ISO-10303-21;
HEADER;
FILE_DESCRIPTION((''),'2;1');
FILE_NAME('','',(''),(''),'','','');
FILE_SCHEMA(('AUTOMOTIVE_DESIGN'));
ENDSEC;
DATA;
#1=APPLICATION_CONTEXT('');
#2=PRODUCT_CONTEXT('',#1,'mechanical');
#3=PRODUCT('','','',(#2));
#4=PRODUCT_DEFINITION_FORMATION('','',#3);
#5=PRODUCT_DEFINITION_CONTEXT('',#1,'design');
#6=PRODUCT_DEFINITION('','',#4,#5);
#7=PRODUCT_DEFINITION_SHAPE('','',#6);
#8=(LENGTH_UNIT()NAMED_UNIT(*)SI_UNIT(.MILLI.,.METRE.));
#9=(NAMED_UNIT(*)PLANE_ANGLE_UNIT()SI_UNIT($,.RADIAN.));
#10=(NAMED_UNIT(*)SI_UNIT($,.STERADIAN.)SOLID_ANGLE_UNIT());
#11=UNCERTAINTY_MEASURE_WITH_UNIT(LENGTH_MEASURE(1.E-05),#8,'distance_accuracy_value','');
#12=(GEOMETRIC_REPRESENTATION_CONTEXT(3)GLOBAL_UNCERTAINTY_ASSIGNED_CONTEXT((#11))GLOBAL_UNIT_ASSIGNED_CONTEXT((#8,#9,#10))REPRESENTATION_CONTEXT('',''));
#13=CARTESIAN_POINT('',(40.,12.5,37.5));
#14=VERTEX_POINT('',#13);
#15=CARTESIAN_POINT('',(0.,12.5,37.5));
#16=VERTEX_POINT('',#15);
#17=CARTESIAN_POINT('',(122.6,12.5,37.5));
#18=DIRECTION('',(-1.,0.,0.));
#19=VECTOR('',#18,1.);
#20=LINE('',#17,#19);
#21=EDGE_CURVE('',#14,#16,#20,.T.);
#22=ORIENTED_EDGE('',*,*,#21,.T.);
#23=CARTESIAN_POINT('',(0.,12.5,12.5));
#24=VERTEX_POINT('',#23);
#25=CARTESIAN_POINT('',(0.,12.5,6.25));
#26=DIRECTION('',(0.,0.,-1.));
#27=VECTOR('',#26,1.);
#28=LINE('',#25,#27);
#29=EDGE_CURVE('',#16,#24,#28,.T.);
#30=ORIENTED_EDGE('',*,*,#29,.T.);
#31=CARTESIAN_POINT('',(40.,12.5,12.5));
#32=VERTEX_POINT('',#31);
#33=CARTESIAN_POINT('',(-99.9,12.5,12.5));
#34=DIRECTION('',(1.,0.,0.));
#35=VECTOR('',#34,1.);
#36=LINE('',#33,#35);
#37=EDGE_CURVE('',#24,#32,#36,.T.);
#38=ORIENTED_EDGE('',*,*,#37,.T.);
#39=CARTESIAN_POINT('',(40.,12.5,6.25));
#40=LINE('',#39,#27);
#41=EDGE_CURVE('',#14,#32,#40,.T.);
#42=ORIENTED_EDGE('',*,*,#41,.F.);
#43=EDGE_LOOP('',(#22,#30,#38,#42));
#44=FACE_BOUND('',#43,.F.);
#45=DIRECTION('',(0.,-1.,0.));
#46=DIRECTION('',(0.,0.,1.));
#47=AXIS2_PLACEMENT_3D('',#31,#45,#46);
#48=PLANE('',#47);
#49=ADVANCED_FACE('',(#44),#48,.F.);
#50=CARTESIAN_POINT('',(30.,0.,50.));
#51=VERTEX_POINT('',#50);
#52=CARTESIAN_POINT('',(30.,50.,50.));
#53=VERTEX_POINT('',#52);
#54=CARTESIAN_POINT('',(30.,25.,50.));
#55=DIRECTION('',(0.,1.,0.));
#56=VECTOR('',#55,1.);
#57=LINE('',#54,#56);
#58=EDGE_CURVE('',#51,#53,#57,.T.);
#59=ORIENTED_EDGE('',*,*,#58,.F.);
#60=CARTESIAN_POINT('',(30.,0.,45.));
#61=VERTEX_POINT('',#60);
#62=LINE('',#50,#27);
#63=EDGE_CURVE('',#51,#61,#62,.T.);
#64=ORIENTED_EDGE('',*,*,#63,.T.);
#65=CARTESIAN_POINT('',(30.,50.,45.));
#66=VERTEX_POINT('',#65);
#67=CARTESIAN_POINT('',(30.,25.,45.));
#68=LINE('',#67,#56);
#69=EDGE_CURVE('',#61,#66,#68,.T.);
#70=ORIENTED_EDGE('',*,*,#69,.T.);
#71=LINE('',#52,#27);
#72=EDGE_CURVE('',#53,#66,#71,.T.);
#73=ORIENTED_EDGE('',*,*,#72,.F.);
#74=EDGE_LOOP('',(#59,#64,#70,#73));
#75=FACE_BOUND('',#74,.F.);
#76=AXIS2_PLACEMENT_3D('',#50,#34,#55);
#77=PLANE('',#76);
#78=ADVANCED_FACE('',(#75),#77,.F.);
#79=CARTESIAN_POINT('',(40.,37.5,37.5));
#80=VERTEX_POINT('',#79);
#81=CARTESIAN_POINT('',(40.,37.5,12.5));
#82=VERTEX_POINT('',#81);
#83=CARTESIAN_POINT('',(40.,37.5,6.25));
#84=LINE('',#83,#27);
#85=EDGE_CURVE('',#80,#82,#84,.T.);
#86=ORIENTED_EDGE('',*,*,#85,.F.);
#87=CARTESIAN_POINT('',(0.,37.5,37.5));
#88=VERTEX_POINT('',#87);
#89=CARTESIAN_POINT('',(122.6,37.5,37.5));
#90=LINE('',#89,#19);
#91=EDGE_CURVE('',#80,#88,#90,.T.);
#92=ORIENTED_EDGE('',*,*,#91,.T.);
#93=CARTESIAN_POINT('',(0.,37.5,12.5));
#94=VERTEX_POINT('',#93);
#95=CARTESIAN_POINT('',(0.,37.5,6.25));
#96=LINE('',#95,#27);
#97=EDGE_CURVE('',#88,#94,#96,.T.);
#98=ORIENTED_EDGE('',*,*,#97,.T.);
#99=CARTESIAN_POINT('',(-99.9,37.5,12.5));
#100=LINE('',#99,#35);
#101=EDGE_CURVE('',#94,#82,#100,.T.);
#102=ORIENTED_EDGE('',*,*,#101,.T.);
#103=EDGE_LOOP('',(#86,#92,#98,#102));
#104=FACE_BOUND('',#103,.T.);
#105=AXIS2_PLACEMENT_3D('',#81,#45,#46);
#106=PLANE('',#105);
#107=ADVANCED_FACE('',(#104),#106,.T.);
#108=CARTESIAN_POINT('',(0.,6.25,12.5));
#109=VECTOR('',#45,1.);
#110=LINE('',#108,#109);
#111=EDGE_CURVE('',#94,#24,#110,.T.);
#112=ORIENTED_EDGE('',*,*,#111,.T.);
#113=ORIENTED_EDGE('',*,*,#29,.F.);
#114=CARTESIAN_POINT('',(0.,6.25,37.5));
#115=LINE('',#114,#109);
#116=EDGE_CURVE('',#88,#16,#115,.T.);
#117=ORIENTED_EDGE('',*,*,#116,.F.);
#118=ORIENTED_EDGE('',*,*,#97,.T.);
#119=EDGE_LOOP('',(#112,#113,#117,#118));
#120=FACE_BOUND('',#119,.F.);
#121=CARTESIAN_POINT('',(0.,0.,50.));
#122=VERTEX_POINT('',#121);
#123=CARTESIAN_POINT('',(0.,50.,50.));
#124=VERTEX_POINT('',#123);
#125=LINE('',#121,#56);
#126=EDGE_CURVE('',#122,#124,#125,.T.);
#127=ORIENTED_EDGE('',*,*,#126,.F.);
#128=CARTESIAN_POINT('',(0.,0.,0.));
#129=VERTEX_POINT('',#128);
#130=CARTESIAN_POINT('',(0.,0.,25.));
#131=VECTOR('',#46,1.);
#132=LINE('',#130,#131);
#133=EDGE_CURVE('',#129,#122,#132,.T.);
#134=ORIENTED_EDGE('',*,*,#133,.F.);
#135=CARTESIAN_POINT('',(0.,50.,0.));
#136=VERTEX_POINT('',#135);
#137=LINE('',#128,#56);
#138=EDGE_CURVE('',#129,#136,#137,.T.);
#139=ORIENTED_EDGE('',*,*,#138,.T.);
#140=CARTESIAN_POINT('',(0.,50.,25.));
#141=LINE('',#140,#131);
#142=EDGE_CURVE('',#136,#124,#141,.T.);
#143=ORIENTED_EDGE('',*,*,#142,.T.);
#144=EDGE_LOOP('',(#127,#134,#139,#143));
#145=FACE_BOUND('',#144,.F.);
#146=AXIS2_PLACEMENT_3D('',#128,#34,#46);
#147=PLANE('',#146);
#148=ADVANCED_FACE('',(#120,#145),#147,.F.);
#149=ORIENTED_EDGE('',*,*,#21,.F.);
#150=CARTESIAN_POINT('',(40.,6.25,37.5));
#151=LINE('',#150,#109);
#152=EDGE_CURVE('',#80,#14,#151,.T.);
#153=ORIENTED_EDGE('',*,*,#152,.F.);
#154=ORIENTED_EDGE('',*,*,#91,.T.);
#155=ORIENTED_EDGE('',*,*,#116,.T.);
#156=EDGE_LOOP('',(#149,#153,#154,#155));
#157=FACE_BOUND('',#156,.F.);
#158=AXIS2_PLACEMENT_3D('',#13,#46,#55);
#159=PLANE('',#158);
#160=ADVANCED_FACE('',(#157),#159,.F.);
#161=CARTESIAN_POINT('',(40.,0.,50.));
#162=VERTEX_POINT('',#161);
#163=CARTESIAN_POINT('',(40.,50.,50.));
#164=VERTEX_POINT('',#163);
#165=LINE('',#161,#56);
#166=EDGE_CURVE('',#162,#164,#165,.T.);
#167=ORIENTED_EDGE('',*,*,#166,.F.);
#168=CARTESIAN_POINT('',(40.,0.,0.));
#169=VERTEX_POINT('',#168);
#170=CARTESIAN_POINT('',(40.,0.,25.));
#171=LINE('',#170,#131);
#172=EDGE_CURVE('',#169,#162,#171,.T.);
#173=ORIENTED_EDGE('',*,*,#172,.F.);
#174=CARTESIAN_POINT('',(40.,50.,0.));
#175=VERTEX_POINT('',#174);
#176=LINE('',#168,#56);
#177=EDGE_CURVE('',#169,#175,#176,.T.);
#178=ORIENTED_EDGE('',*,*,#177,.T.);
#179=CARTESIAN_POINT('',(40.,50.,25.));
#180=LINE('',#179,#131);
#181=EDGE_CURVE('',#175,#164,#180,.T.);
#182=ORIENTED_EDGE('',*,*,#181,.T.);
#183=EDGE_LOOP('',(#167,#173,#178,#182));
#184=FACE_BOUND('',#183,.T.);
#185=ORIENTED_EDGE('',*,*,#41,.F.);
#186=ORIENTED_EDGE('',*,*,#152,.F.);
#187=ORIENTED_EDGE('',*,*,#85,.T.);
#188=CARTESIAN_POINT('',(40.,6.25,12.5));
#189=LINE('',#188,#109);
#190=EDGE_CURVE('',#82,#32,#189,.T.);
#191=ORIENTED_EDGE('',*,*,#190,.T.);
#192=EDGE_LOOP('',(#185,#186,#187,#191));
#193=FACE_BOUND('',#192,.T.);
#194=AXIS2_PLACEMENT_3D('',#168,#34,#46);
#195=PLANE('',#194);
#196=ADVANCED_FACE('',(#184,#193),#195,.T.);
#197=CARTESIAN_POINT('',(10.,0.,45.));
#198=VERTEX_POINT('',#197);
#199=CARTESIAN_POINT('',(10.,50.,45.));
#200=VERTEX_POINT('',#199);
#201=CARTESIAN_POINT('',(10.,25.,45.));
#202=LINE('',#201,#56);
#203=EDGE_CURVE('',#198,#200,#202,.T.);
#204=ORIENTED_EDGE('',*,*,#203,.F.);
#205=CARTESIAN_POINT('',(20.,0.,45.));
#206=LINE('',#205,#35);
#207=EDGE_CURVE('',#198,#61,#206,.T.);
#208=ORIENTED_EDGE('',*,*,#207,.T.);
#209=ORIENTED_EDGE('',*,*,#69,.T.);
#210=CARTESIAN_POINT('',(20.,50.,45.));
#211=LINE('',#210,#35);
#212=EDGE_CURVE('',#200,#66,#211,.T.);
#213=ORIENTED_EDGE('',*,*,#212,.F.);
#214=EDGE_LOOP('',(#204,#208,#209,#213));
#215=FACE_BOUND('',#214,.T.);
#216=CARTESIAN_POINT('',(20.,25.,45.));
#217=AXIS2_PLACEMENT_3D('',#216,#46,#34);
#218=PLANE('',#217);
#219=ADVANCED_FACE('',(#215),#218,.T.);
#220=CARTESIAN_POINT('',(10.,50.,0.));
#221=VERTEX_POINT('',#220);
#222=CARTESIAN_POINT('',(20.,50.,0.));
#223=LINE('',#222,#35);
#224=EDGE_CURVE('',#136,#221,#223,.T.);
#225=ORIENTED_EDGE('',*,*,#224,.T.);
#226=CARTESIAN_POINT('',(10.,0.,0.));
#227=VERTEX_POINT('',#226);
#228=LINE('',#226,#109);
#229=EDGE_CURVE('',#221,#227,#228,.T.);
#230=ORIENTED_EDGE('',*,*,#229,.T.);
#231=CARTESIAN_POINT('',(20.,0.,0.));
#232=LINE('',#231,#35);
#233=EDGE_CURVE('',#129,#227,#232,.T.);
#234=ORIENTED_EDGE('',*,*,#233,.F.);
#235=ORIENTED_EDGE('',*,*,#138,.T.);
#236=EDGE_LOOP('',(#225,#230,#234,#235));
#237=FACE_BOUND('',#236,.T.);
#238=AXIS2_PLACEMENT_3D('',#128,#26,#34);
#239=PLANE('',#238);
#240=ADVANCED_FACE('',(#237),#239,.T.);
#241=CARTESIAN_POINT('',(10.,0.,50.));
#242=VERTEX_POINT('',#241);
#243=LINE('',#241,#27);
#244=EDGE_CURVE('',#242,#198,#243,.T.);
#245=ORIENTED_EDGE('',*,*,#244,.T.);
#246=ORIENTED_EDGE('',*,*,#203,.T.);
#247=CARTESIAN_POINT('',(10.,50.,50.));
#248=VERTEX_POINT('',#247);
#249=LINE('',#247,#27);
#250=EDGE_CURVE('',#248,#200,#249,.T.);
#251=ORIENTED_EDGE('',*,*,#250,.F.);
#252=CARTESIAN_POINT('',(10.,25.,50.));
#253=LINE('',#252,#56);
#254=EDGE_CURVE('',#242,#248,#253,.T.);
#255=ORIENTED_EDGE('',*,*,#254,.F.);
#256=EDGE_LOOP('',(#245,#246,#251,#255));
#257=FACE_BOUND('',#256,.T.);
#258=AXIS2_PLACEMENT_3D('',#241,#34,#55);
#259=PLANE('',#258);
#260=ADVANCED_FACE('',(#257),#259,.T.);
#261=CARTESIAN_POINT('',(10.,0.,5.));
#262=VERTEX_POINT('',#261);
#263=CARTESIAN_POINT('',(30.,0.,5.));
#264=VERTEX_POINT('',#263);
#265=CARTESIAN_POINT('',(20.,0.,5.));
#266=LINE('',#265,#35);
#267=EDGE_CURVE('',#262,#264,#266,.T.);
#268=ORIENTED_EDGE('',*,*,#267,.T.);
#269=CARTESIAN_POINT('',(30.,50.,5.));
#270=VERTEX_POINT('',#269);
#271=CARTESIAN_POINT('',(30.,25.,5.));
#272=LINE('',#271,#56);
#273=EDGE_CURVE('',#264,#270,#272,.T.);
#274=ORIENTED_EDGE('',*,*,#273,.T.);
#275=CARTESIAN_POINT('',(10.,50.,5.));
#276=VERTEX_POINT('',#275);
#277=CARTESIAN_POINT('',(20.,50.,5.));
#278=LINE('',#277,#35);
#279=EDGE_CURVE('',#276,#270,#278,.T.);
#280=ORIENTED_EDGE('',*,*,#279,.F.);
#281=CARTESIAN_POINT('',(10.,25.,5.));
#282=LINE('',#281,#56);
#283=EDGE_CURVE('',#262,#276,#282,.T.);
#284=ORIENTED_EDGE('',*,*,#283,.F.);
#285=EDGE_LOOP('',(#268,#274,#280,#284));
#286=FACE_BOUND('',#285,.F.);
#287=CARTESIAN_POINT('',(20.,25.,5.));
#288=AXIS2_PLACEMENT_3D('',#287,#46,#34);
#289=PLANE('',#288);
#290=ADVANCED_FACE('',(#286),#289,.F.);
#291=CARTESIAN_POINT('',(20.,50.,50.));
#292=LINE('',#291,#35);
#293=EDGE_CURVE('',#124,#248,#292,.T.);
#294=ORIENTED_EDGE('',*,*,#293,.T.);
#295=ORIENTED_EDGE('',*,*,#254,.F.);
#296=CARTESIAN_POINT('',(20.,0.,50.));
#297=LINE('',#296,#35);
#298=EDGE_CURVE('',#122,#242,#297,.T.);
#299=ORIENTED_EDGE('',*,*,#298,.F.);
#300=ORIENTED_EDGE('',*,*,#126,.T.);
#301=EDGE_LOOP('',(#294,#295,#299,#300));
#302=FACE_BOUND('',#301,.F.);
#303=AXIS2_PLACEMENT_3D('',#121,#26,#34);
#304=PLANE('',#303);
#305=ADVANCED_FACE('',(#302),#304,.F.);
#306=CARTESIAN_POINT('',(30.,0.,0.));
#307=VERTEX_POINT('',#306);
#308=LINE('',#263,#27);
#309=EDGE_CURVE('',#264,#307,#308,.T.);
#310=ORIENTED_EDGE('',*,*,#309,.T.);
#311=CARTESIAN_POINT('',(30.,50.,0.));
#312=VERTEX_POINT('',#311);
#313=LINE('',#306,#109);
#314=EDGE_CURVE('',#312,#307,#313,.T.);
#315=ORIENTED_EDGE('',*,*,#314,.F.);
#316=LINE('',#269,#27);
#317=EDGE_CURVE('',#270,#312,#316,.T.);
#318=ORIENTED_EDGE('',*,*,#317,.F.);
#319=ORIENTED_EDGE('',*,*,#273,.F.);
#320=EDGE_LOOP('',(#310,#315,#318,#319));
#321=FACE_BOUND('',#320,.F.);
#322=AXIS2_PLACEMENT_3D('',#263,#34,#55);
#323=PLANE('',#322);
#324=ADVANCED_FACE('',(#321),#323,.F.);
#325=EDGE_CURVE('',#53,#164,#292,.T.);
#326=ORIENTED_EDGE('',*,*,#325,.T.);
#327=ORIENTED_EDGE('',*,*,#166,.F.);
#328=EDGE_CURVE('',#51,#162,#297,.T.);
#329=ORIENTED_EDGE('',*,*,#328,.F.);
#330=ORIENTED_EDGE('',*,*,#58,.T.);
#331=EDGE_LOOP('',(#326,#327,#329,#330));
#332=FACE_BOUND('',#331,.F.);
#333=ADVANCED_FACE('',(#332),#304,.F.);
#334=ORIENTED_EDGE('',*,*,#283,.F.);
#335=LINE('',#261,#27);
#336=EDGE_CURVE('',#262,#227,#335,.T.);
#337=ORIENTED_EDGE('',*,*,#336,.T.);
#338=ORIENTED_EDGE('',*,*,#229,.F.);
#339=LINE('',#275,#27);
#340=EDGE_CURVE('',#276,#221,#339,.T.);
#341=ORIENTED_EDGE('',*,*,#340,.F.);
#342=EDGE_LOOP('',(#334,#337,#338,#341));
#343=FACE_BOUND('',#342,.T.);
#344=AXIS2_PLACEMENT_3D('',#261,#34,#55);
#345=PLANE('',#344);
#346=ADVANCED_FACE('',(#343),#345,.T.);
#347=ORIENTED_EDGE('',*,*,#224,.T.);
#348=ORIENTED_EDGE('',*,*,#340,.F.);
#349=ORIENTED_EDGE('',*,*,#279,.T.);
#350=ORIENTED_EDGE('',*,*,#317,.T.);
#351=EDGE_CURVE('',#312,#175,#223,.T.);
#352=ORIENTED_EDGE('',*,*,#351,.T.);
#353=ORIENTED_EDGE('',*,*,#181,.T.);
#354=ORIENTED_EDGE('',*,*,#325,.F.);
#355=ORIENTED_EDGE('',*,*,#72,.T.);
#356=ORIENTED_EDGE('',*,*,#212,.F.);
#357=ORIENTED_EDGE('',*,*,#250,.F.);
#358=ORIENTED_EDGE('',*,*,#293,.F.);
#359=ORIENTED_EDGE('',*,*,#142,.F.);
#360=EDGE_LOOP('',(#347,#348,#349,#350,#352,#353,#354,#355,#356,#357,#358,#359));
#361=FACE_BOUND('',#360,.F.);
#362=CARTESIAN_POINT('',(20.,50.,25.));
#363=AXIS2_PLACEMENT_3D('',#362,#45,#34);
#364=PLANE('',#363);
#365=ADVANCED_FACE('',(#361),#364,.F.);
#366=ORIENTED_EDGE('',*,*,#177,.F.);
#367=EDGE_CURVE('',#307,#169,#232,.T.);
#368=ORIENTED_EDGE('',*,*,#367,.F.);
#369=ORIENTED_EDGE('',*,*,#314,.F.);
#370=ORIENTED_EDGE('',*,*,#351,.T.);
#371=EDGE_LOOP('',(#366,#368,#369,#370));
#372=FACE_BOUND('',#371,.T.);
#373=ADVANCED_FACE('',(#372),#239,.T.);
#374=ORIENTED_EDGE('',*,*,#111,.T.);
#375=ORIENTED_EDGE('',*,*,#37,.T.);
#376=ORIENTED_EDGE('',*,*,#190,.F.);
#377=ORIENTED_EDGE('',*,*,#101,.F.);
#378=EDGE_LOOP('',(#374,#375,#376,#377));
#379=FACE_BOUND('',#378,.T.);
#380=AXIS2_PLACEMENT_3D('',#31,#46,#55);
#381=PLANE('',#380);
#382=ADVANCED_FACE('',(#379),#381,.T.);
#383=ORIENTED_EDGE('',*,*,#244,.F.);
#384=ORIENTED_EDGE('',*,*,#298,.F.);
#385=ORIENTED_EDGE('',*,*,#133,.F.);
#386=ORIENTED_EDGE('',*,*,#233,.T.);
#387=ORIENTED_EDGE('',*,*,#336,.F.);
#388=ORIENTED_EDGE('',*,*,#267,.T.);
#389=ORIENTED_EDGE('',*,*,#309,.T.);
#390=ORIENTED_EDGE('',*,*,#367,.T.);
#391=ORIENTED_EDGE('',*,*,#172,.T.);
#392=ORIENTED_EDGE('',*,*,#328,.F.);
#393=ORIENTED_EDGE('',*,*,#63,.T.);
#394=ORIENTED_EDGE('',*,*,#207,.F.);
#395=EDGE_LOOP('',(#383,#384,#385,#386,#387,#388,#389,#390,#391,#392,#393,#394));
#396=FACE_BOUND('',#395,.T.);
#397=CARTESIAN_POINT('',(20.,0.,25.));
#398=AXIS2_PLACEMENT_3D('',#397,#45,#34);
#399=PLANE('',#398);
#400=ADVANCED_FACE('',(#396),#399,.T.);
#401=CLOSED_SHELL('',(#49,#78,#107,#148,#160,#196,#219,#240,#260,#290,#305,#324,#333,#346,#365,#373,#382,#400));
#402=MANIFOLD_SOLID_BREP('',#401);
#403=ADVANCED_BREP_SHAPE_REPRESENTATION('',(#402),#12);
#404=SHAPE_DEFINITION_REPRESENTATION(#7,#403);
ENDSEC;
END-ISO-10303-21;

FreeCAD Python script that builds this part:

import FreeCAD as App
import Part
import Sketcher
from FreeCAD import Vector
Q = App.Units.Quantity

doc = App.newDocument("Part")
params = doc.addObject("Spreadsheet::Sheet", "Params")
for row, (alias, value) in enumerate([
    ("sketch1_width", "40 mm"),
    ("sketch1_height", "50 mm"),
    ("pad1_length", "50 mm"),
    ("sketch2_width", "25 mm"),
    ("pad2_length", "139.9 mm"),
    ("pad2_length2", "82.6 mm"),
    ("sketch3_width", "20 mm"),
    ("sketch3_height", "50 mm"),
    ("pocket1_length", "5 mm"),
    ("sketch4_width", "20 mm"),
    ("sketch4_height", "50 mm"),
    ("pocket2_length", "30.1 mm"),
], start=1):
    params.set(f"A{row}", alias)
    params.set(f"B{row}", "=" + value)
    params.setAlias(f"B{row}", alias)

body = doc.addObject("PartDesign::Body", "Body")

# Sketch on XZ plane
sketch1 = body.newObject("Sketcher::SketchObject", "Sketch")
sketch1.AttachmentSupport = (doc.getObject("XZ_Plane"), [""])
sketch1.MapMode = "FlatFace"
sketch1.addGeometry(Part.LineSegment(Vector(0, 50, 0), Vector(0, 0, 0)), False)
sketch1.addGeometry(Part.LineSegment(Vector(0, 0, 0), Vector(40, 0, 0)), False)
sketch1.addGeometry(Part.LineSegment(Vector(40, 0, 0), Vector(40, 50, 0)), False)
sketch1.addGeometry(Part.LineSegment(Vector(40, 50, 0), Vector(0, 50, 0)), False)
sketch1.addConstraint(Sketcher.Constraint("Coincident", 0, 2, 1, 1))
sketch1.addConstraint(Sketcher.Constraint("Coincident", 1, 2, 2, 1))
sketch1.addConstraint(Sketcher.Constraint("Coincident", 2, 2, 3, 1))
sketch1.addConstraint(Sketcher.Constraint("Coincident", 3, 2, 0, 1))
sketch1.addConstraint(Sketcher.Constraint("Vertical", 0))
sketch1.addConstraint(Sketcher.Constraint("Horizontal", 1))
sketch1.addConstraint(Sketcher.Constraint("Vertical", 2))
sketch1.addConstraint(Sketcher.Constraint("Horizontal", 3))
sketch1.addConstraint(Sketcher.Constraint("Coincident", 0, 2, -1, 1))
sketch1.addConstraint(Sketcher.Constraint("DistanceX", 1, 1, 1, 2, Q("40 mm")))
sketch1.addConstraint(Sketcher.Constraint("DistanceY", 0, 2, 0, 1, Q("50 mm")))
sketch1.setExpression("Constraints[9]", "Params.sketch1_width")
sketch1.setExpression("Constraints[10]", "Params.sketch1_height")
pad1 = body.newObject("PartDesign::Pad", "Pad")
pad1.Profile = sketch1
pad1.setExpression("Length", "Params.pad1_length")
pad1.Reversed = True
body2 = doc.addObject("PartDesign::Body", "Body001")

# Sketch on YZ plane
sketch2 = body2.newObject("Sketcher::SketchObject", "Sketch001")
sketch2.AttachmentSupport = (doc.getObject("YZ_Plane001"), [""])
sketch2.MapMode = "FlatFace"
sketch2.AttachmentOffset = App.Placement(Vector(0, 0, 40), App.Rotation())
sketch2.addGeometry(Part.LineSegment(Vector(12.5, 37.5, 0), Vector(12.5, 12.5, 0)), False)
sketch2.addGeometry(Part.LineSegment(Vector(12.5, 12.5, 0), Vector(37.5, 12.5, 0)), False)
sketch2.addGeometry(Part.LineSegment(Vector(37.5, 12.5, 0), Vector(37.5, 37.5, 0)), False)
sketch2.addGeometry(Part.LineSegment(Vector(37.5, 37.5, 0), Vector(12.5, 37.5, 0)), False)
sketch2.addConstraint(Sketcher.Constraint("Coincident", 0, 2, 1, 1))
sketch2.addConstraint(Sketcher.Constraint("Coincident", 1, 2, 2, 1))
sketch2.addConstraint(Sketcher.Constraint("Coincident", 2, 2, 3, 1))
sketch2.addConstraint(Sketcher.Constraint("Coincident", 3, 2, 0, 1))
sketch2.addConstraint(Sketcher.Constraint("Vertical", 0))
sketch2.addConstraint(Sketcher.Constraint("Horizontal", 1))
sketch2.addConstraint(Sketcher.Constraint("Vertical", 2))
sketch2.addConstraint(Sketcher.Constraint("Horizontal", 3))
sketch2.addConstraint(Sketcher.Constraint("Equal", 3, 0))
sketch2.addConstraint(Sketcher.Constraint("DistanceX", 1, 1, 1, 2, Q("25 mm")))
sketch2.addConstraint(Sketcher.Constraint("DistanceX", -1, 1, 0, 2, Q("12.5 mm")))
sketch2.addConstraint(Sketcher.Constraint("DistanceY", -1, 1, 0, 2, Q("12.5 mm")))
sketch2.setExpression("Constraints[9]", "Params.sketch2_width")
pad2 = body2.newObject("PartDesign::Pad", "Pad001")
pad2.Profile = sketch2
pad2.Type = "TwoLengths"
pad2.setExpression("Length", "Params.pad2_length")
pad2.setExpression("Length2", "Params.pad2_length2")
pad2.Reversed = True
doc.recompute()

boolean = body.newObject("PartDesign::Boolean", "Boolean")
boolean.Type = "Cut"
boolean.addObjects([body2])

# Sketch on XY plane
sketch3 = body.newObject("Sketcher::SketchObject", "Sketch002")
sketch3.AttachmentSupport = (doc.getObject("XY_Plane"), [""])
sketch3.MapMode = "FlatFace"
sketch3.AttachmentOffset = App.Placement(Vector(0, 0, 50), App.Rotation())
sketch3.addGeometry(Part.LineSegment(Vector(10, 50, 0), Vector(10, 0, 0)), False)
sketch3.addGeometry(Part.LineSegment(Vector(10, 0, 0), Vector(30, 0, 0)), False)
sketch3.addGeometry(Part.LineSegment(Vector(30, 0, 0), Vector(30, 50, 0)), False)
sketch3.addGeometry(Part.LineSegment(Vector(30, 50, 0), Vector(10, 50, 0)), False)
sketch3.addConstraint(Sketcher.Constraint("Coincident", 0, 2, 1, 1))
sketch3.addConstraint(Sketcher.Constraint("Coincident", 1, 2, 2, 1))
sketch3.addConstraint(Sketcher.Constraint("Coincident", 2, 2, 3, 1))
sketch3.addConstraint(Sketcher.Constraint("Coincident", 3, 2, 0, 1))
sketch3.addConstraint(Sketcher.Constraint("Vertical", 0))
sketch3.addConstraint(Sketcher.Constraint("Horizontal", 1))
sketch3.addConstraint(Sketcher.Constraint("Vertical", 2))
sketch3.addConstraint(Sketcher.Constraint("Horizontal", 3))
sketch3.addConstraint(Sketcher.Constraint("PointOnObject", 0, 2, -1))
sketch3.addConstraint(Sketcher.Constraint("DistanceX", 1, 1, 1, 2, Q("20 mm")))
sketch3.addConstraint(Sketcher.Constraint("DistanceY", 0, 2, 0, 1, Q("50 mm")))
sketch3.addConstraint(Sketcher.Constraint("DistanceX", -1, 1, 0, 2, Q("10 mm")))
sketch3.setExpression("Constraints[9]", "Params.sketch3_width")
sketch3.setExpression("Constraints[10]", "Params.sketch3_height")
pocket1 = body.newObject("PartDesign::Pocket", "Pocket")
pocket1.Profile = sketch3
pocket1.setExpression("Length", "Params.pocket1_length")

# Sketch on XY plane
sketch4 = body.newObject("Sketcher::SketchObject", "Sketch003")
sketch4.AttachmentSupport = (doc.getObject("XY_Plane"), [""])
sketch4.MapMode = "FlatFace"
sketch4.AttachmentOffset = App.Placement(Vector(0, 0, 5), App.Rotation())
sketch4.addGeometry(Part.LineSegment(Vector(10, 50, 0), Vector(10, 0, 0)), False)
sketch4.addGeometry(Part.LineSegment(Vector(10, 0, 0), Vector(30, 0, 0)), False)
sketch4.addGeometry(Part.LineSegment(Vector(30, 0, 0), Vector(30, 50, 0)), False)
sketch4.addGeometry(Part.LineSegment(Vector(30, 50, 0), Vector(10, 50, 0)), False)
sketch4.addConstraint(Sketcher.Constraint("Coincident", 0, 2, 1, 1))
sketch4.addConstraint(Sketcher.Constraint("Coincident", 1, 2, 2, 1))
sketch4.addConstraint(Sketcher.Constraint("Coincident", 2, 2, 3, 1))
sketch4.addConstraint(Sketcher.Constraint("Coincident", 3, 2, 0, 1))
sketch4.addConstraint(Sketcher.Constraint("Vertical", 0))
sketch4.addConstraint(Sketcher.Constraint("Horizontal", 1))
sketch4.addConstraint(Sketcher.Constraint("Vertical", 2))
sketch4.addConstraint(Sketcher.Constraint("Horizontal", 3))
sketch4.addConstraint(Sketcher.Constraint("PointOnObject", 0, 2, -1))
sketch4.addConstraint(Sketcher.Constraint("DistanceX", 1, 1, 1, 2, Q("20 mm")))
sketch4.addConstraint(Sketcher.Constraint("DistanceY", 0, 2, 0, 1, Q("50 mm")))
sketch4.addConstraint(Sketcher.Constraint("DistanceX", -1, 1, 0, 2, Q("10 mm")))
sketch4.setExpression("Constraints[9]", "Params.sketch4_width")
sketch4.setExpression("Constraints[10]", "Params.sketch4_height")
pocket2 = body.newObject("PartDesign::Pocket", "Pocket001")
pocket2.Profile = sketch4
pocket2.setExpression("Length", "Params.pocket2_length")

doc.recompute()
